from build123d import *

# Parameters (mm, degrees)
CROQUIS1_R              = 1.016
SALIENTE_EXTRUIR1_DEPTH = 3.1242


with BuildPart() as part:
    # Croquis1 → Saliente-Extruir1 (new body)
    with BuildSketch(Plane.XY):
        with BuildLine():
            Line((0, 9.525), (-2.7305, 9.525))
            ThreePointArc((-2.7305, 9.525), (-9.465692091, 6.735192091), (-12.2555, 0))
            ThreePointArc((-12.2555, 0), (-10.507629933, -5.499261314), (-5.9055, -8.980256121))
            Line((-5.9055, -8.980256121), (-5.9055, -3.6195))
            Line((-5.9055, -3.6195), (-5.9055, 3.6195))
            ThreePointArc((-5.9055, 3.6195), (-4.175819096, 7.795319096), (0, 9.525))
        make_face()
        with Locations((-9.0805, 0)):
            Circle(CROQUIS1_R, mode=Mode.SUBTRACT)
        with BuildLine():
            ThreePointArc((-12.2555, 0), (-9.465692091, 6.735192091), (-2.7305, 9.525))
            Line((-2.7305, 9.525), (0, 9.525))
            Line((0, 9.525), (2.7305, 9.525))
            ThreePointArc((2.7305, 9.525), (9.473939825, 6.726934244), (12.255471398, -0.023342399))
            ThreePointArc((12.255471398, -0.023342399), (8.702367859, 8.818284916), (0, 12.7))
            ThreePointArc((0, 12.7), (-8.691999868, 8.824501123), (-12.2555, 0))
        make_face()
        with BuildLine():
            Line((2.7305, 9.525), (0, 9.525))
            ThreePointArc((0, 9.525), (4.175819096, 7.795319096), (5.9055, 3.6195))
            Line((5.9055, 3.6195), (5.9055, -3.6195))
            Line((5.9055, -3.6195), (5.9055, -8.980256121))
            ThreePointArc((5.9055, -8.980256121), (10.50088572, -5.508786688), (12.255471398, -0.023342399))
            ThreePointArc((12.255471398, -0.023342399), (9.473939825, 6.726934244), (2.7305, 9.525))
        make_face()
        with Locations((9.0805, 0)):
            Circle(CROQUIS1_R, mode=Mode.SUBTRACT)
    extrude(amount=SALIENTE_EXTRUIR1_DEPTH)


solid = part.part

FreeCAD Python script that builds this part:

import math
import FreeCAD as App
import Part
import Sketcher
from FreeCAD import Vector
Q = App.Units.Quantity

doc = App.newDocument("Part")
params = doc.addObject("Spreadsheet::Sheet", "Params")
for row, (alias, value) in enumerate([
    ("sketch1_radius", "0.5 in"),
    ("sketch1_diameter", "0.08 in"),
    ("sketch1_radius2", "0.375 in"),
    ("pad1_length", "0.123 in"),
], start=1):
    params.set(f"A{row}", alias)
    params.set(f"B{row}", "=" + value)
    params.setAlias(f"B{row}", alias)

body = doc.addObject("PartDesign::Body", "Body")

# Sketch on XY plane
sketch1 = body.newObject("Sketcher::SketchObject", "Sketch")
sketch1.AttachmentSupport = (doc.getObject("XY_Plane"), [""])
sketch1.MapMode = "FlatFace"
sketch1.addGeometry([
    Part.ArcOfCircle(Part.Circle(Vector(0, 3.6195, 0), Vector(0, 0, 1), 5.9055), math.radians(90), math.radians(180)),  # 0
    Part.ArcOfCircle(Part.Circle(Vector(0, 3.6195, 0), Vector(0, 0, 1), 5.9055), math.radians(0), math.radians(90)),  # 1
    Part.LineSegment(Vector(5.9055, 3.6195, 0), Vector(5.9055, -8.980256, 0)),  # 2
    Part.ArcOfCircle(Part.Circle(Vector(2.7305, 0, 0), Vector(0, 0, 1), 9.525), math.radians(-70.528779), math.radians(-0.140412)),  # 3
    Part.ArcOfCircle(Part.Circle(Vector(-0.44449, 0.007781, 0), Vector(0, 0, 1), 12.7), math.radians(-0.140412), math.radians(87.994281)),  # 4
    Part.ArcOfCircle(Part.Circle(Vector(0.452561, 0, 0), Vector(0, 0, 1), 12.708061), math.radians(92.040855), math.radians(180)),  # 5
    Part.ArcOfCircle(Part.Circle(Vector(-2.7305, 0, 0), Vector(0, 0, 1), 9.525), math.radians(-180), math.radians(-109.471221)),  # 6
    Part.LineSegment(Vector(-5.9055, -8.980256, 0), Vector(-5.9055, 3.6195, 0)),  # 7
    Part.Circle(Vector(-9.0805, 0, 0), Vector(0, 0, 1), 1.016),  # 8
    Part.Circle(Vector(9.0805, 0, 0), Vector(0, 0, 1), 1.016),  # 9
], False)
sketch1.addConstraint([
    Sketcher.Constraint("Tangent", 0, 1, 1, 2),
    Sketcher.Constraint("Tangent", 1, 1, 2, 1),
    Sketcher.Constraint("Coincident", 2, 2, 3, 1),
    Sketcher.Constraint("Tangent", 3, 2, 4, 1),
    Sketcher.Constraint("Coincident", 4, 2, 5, 1),
    Sketcher.Constraint("Tangent", 5, 2, 6, 1),
    Sketcher.Constraint("Coincident", 6, 2, 7, 1),
    Sketcher.Constraint("Tangent", 7, 2, 0, 2),
    Sketcher.Constraint("Vertical", 2),
    Sketcher.Constraint("Vertical", 7),
    Sketcher.Constraint("Equal", 0, 1),
    Sketcher.Constraint("Equal", 3, 6),
    Sketcher.Constraint("Equal", 8, 9),
    Sketcher.Constraint("Symmetric", 3, 3, 6, 3, -1, 1),
    Sketcher.Constraint("Symmetric", 8, 3, 9, 3, -1, 1),
    Sketcher.Constraint("Symmetric", 2, 2, 6, 2, -2),
    Sketcher.Constraint("PointOnObject", 5, 3, -1),
    Sketcher.Constraint("PointOnObject", 8, 3, -1),
    Sketcher.Constraint("PointOnObject", 0, 1, -2),
    Sketcher.Constraint("PointOnObject", 4, 2, -2),
    Sketcher.Constraint("Radius", 4, Q("0.5 in")),
    Sketcher.Constraint("Diameter", 8, Q("0.08 in")),
    Sketcher.Constraint("Radius", 3, Q("0.375 in")),
    Sketcher.Constraint("DistanceY", -1, 1, 4, 2, Q("0.5 in")),
    Sketcher.Constraint("Radius", 0, Q("0.2325 in")),
    Sketcher.Constraint("DistanceX", 8, 3, 6, 3, Q("0.25 in")),
    Sketcher.Constraint("DistanceX", 6, 3, 2, 2, Q("0.34 in")),
    Sketcher.Constraint("DistanceY", -1, 1, 0, 1, Q("0.375 in")),
])
sketch1.setExpression("Constraints[20]", "Params.sketch1_radius")
sketch1.setExpression("Constraints[21]", "Params.sketch1_diameter")
sketch1.setExpression("Constraints[22]", "Params.sketch1_radius2")
pad1 = body.newObject("PartDesign::Pad", "Pad")
pad1.Profile = sketch1
pad1.setExpression("Length", "Params.pad1_length")

doc.recompute()
